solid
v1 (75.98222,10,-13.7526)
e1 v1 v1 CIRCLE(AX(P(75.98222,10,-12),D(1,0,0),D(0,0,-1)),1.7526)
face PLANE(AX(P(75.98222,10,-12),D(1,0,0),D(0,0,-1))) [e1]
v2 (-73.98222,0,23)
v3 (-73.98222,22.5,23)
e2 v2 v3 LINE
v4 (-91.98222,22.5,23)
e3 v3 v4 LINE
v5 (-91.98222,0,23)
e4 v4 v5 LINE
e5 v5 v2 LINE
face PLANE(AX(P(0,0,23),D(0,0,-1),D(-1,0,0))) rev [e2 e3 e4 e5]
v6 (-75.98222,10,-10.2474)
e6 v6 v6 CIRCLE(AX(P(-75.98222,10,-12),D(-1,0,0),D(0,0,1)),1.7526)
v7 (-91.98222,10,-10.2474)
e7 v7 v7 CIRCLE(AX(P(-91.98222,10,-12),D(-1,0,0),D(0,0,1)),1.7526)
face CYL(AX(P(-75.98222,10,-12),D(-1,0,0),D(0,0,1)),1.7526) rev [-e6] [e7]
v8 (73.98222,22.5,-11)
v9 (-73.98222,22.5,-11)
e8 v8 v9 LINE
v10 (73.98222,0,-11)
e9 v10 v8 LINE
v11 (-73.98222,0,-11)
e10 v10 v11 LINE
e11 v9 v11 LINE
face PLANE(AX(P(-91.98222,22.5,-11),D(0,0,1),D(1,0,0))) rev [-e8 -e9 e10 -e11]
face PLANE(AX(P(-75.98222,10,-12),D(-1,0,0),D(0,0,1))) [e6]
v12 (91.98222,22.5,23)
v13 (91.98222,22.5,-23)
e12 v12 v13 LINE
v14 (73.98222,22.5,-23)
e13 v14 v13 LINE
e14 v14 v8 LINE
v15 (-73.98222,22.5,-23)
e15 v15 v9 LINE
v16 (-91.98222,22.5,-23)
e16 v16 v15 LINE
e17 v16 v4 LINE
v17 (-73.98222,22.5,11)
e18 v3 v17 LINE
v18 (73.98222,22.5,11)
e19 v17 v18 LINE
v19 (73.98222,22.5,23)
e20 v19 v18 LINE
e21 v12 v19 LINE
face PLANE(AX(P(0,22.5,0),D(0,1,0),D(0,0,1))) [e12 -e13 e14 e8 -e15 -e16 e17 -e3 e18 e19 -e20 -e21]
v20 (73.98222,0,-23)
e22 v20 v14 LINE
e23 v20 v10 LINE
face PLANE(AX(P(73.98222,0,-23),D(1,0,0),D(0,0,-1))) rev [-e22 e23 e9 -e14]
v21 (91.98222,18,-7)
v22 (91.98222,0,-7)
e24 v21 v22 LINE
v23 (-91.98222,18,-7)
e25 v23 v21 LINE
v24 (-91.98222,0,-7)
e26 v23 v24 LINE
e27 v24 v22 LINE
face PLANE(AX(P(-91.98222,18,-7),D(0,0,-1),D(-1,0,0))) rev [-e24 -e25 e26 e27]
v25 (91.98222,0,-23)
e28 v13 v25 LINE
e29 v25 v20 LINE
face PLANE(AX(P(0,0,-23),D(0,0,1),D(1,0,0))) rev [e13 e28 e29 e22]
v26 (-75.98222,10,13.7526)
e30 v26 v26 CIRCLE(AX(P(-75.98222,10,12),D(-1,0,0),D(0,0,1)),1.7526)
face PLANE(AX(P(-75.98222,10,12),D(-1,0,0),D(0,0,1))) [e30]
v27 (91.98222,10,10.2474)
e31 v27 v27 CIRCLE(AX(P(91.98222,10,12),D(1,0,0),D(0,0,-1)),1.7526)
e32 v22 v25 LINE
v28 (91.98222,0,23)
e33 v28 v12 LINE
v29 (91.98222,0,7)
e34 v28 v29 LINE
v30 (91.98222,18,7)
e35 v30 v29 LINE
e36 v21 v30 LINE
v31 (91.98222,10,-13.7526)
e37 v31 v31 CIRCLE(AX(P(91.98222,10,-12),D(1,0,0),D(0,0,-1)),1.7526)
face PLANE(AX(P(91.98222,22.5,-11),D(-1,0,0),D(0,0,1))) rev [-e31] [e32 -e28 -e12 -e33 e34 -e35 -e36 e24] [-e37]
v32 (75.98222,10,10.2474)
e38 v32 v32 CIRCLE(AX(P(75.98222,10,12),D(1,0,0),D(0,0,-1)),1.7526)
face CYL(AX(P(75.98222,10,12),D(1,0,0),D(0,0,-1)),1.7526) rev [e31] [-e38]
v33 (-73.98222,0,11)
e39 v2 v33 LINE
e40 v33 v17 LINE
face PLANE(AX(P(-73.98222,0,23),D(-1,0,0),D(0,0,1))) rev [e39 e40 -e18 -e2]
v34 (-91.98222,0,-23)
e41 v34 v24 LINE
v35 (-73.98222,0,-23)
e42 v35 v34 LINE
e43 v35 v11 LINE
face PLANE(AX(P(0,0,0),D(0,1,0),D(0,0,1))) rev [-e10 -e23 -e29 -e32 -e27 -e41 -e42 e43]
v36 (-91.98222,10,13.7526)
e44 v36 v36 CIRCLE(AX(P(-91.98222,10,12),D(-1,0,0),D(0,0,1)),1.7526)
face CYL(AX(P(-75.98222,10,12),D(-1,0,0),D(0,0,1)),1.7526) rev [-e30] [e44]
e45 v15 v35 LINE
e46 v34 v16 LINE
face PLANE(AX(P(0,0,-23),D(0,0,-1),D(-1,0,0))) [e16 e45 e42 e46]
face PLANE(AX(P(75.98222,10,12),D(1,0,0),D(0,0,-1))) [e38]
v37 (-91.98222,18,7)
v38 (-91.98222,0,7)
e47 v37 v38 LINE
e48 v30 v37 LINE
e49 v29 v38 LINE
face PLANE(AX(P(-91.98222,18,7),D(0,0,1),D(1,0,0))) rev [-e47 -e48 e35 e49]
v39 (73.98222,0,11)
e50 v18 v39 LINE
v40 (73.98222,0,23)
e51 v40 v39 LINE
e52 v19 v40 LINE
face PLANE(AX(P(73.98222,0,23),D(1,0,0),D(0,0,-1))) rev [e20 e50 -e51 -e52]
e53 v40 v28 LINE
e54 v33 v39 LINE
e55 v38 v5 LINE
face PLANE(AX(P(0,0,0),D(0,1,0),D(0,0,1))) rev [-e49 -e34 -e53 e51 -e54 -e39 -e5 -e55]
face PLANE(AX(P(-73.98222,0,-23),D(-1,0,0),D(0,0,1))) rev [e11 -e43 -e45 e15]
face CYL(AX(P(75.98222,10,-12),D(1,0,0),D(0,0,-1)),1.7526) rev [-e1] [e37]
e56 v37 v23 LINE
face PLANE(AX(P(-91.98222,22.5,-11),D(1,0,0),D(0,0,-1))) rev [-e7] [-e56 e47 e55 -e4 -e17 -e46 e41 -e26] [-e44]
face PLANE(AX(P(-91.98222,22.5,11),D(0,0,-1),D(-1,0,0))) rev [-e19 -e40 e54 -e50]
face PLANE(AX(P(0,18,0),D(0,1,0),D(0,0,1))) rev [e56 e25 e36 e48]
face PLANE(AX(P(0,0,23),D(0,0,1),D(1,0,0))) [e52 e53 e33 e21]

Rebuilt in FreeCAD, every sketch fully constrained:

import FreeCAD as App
import Part
import Sketcher
from FreeCAD import Vector
Q = App.Units.Quantity

doc = App.newDocument("Part")
params = doc.addObject("Spreadsheet::Sheet", "Params")
for row, (alias, value) in enumerate([
    ("sketch1_height", "22 mm"),
    ("pad1_length", "22.5 mm"),
    ("sketch2_height", "14 mm"),
    ("pocket1_length", "18 mm"),
    ("sketch3_width", "18 mm"),
    ("sketch3_height", "22.5 mm"),
    ("pad2_length", "12 mm"),
    ("sketch4_width", "18 mm"),
    ("sketch4_height", "22.5 mm"),
    ("pad3_length", "12 mm"),
    ("pocket2_length", "16 mm"),
    ("pocket3_length", "16 mm"),
], start=1):
    params.set(f"A{row}", alias)
    params.set(f"B{row}", "=" + value)
    params.setAlias(f"B{row}", alias)

body = doc.addObject("PartDesign::Body", "Body")

# Sketch on XZ plane
sketch1 = body.newObject("Sketcher::SketchObject", "Sketch")
sketch1.AttachmentSupport = (doc.getObject("XZ_Plane"), [""])
sketch1.MapMode = "FlatFace"
sketch1.addGeometry([
    Part.LineSegment(Vector(-92, -11, 0), Vector(-92, 11, 0)),
    Part.LineSegment(Vector(-92, 11, 0), Vector(92, 11, 0)),
    Part.LineSegment(Vector(92, 11, 0), Vector(92, -11, 0)),
    Part.LineSegment(Vector(92, -11, 0), Vector(-92, -11, 0)),
], False)
sketch1.addConstraint([
    Sketcher.Constraint("Coincident", 0, 2, 1, 1),
    Sketcher.Constraint("Coincident", 1, 2, 2, 1),
    Sketcher.Constraint("Coincident", 2, 2, 3, 1),
    Sketcher.Constraint("Coincident", 3, 2, 0, 1),
    Sketcher.Constraint("Vertical", 0),
    Sketcher.Constraint("Horizontal", 1),
    Sketcher.Constraint("Vertical", 2),
    Sketcher.Constraint("Horizontal", 3),
    Sketcher.Constraint("Symmetric", 0, 2, 2, 2, -1, 1),
    Sketcher.Constraint("DistanceY", 0, 1, 0, 2, Q("22 mm")),
    Sketcher.Constraint("DistanceX", 1, 1, 1, 2, Q("183.96444 mm")),
])
sketch1.setExpression("Constraints[9]", "Params.sketch1_height")
pad1 = body.newObject("PartDesign::Pad", "Pad")
pad1.Profile = sketch1
pad1.setExpression("Length", "Params.pad1_length")
pad1.Reversed = True

# Sketch on XZ plane
sketch2 = body.newObject("Sketcher::SketchObject", "Sketch001")
sketch2.AttachmentSupport = (doc.getObject("XZ_Plane"), [""])
sketch2.MapMode = "FlatFace"
sketch2.addGeometry([
    Part.LineSegment(Vector(-92, 7, 0), Vector(-92, -7, 0)),
    Part.LineSegment(Vector(-92, -7, 0), Vector(92, -7, 0)),
    Part.LineSegment(Vector(92, -7, 0), Vector(92, 7, 0)),
    Part.LineSegment(Vector(92, 7, 0), Vector(-92, 7, 0)),
], False)
sketch2.addConstraint([
    Sketcher.Constraint("Coincident", 0, 2, 1, 1),
    Sketcher.Constraint("Coincident", 1, 2, 2, 1),
    Sketcher.Constraint("Coincident", 2, 2, 3, 1),
    Sketcher.Constraint("Coincident", 3, 2, 0, 1),
    Sketcher.Constraint("Vertical", 0),
    Sketcher.Constraint("Horizontal", 1),
    Sketcher.Constraint("Vertical", 2),
    Sketcher.Constraint("Horizontal", 3),
    Sketcher.Constraint("Symmetric", 0, 2, 2, 2, -1, 1),
    Sketcher.Constraint("DistanceY", 0, 2, 0, 1, Q("14 mm")),
    Sketcher.Constraint("DistanceX", 1, 1, 1, 2, Q("183.96444 mm")),
])
sketch2.setExpression("Constraints[9]", "Params.sketch2_height")
pocket1 = body.newObject("PartDesign::Pocket", "Pocket")
pocket1.Profile = sketch2
pocket1.setExpression("Length", "Params.pocket1_length")

# Sketch on XY plane
sketch3 = body.newObject("Sketcher::SketchObject", "Sketch002")
sketch3.AttachmentSupport = (doc.getObject("XY_Plane"), [""])
sketch3.MapMode = "FlatFace"
sketch3.AttachmentOffset = App.Placement(Vector(0, 0, 11), App.Rotation())
sketch3.addGeometry([
    Part.LineSegment(Vector(-92, 22, 0), Vector(-92, 0, 0)),  # 0
    Part.LineSegment(Vector(-92, 0, 0), Vector(-74, 0, 0)),  # 1
    Part.LineSegment(Vector(-74, 0, 0), Vector(-74, 22, 0)),  # 2
    Part.LineSegment(Vector(-74, 22, 0), Vector(-92, 22, 0)),  # 3
    Part.LineSegment(Vector(74, 22, 0), Vector(74, 0, 0)),  # 4
    Part.LineSegment(Vector(74, 0, 0), Vector(92, 0, 0)),  # 5
    Part.LineSegment(Vector(92, 0, 0), Vector(92, 22, 0)),  # 6
    Part.LineSegment(Vector(92, 22, 0), Vector(74, 22, 0)),  # 7
], False)
sketch3.addConstraint([
    Sketcher.Constraint("Coincident", 0, 2, 1, 1),
    Sketcher.Constraint("Coincident", 1, 2, 2, 1),
    Sketcher.Constraint("Coincident", 2, 2, 3, 1),
    Sketcher.Constraint("Coincident", 3, 2, 0, 1),
    Sketcher.Constraint("Coincident", 4, 2, 5, 1),
    Sketcher.Constraint("Coincident", 5, 2, 6, 1),
    Sketcher.Constraint("Coincident", 6, 2, 7, 1),
    Sketcher.Constraint("Coincident", 7, 2, 4, 1),
    Sketcher.Constraint("Vertical", 0),
    Sketcher.Constraint("Horizontal", 1),
    Sketcher.Constraint("Vertical", 2),
    Sketcher.Constraint("Horizontal", 3),
    Sketcher.Constraint("Vertical", 4),
    Sketcher.Constraint("Horizontal", 5),
    Sketcher.Constraint("Vertical", 6),
    Sketcher.Constraint("Horizontal", 7),
    Sketcher.Constraint("Symmetric", 1, 2, 4, 2, -1, 1),
    Sketcher.Constraint("Symmetric", 0, 2, 5, 2, -2),
    Sketcher.Constraint("Horizontal", 3, 2, 6, 2),
    Sketcher.Constraint("DistanceX", 1, 1, 1, 2, Q("18 mm")),
    Sketcher.Constraint("DistanceY", 0, 2, 0, 1, Q("22.5 mm")),
    Sketcher.Constraint("DistanceX", 0, 2, -1, 1, Q("91.98222 mm")),
])
sketch3.setExpression("Constraints[19]", "Params.sketch3_width")
sketch3.setExpression("Constraints[20]", "Params.sketch3_height")
pad2 = body.newObject("PartDesign::Pad", "Pad001")
pad2.Profile = sketch3
pad2.setExpression("Length", "Params.pad2_length")

# Sketch on XY plane
sketch4 = body.newObject("Sketcher::SketchObject", "Sketch003")
sketch4.AttachmentSupport = (doc.getObject("XY_Plane"), [""])
sketch4.MapMode = "FlatFace"
sketch4.AttachmentOffset = App.Placement(Vector(0, 0, -11), App.Rotation())
sketch4.addGeometry([
    Part.LineSegment(Vector(92, 22, 0), Vector(92, 0, 0)),  # 0
    Part.LineSegment(Vector(92, 0, 0), Vector(74, 0, 0)),  # 1
    Part.LineSegment(Vector(74, 0, 0), Vector(74, 22, 0)),  # 2
    Part.LineSegment(Vector(74, 22, 0), Vector(92, 22, 0)),  # 3
    Part.LineSegment(Vector(-74, 22, 0), Vector(-74, 0, 0)),  # 4
    Part.LineSegment(Vector(-74, 0, 0), Vector(-92, 0, 0)),  # 5
    Part.LineSegment(Vector(-92, 0, 0), Vector(-92, 22, 0)),  # 6
    Part.LineSegment(Vector(-92, 22, 0), Vector(-74, 22, 0)),  # 7
], False)
sketch4.addConstraint([
    Sketcher.Constraint("Coincident", 0, 2, 1, 1),
    Sketcher.Constraint("Coincident", 1, 2, 2, 1),
    Sketcher.Constraint("Coincident", 2, 2, 3, 1),
    Sketcher.Constraint("Coincident", 3, 2, 0, 1),
    Sketcher.Constraint("Coincident", 4, 2, 5, 1),
    Sketcher.Constraint("Coincident", 5, 2, 6, 1),
    Sketcher.Constraint("Coincident", 6, 2, 7, 1),
    Sketcher.Constraint("Coincident", 7, 2, 4, 1),
    Sketcher.Constraint("Vertical", 0),
    Sketcher.Constraint("Horizontal", 1),
    Sketcher.Constraint("Vertical", 2),
    Sketcher.Constraint("Horizontal", 3),
    Sketcher.Constraint("Vertical", 4),
    Sketcher.Constraint("Horizontal", 5),
    Sketcher.Constraint("Vertical", 6),
    Sketcher.Constraint("Horizontal", 7),
    Sketcher.Constraint("Symmetric", 1, 2, 4, 2, -1, 1),
    Sketcher.Constraint("Symmetric", 0, 2, 5, 2, -2),
    Sketcher.Constraint("Horizontal", 3, 2, 6, 2),
    Sketcher.Constraint("DistanceX", 1, 2, 1, 1, Q("18 mm")),
    Sketcher.Constraint("DistanceY", 0, 2, 0, 1, Q("22.5 mm")),
    Sketcher.Constraint("DistanceX", -1, 1, 0, 2, Q("91.98222 mm")),
])
sketch4.setExpression("Constraints[19]", "Params.sketch4_width")
sketch4.setExpression("Constraints[20]", "Params.sketch4_height")
pad3 = body.newObject("PartDesign::Pad", "Pad002")
pad3.Profile = sketch4
pad3.setExpression("Length", "Params.pad3_length")
pad3.Reversed = True

# Sketch on YZ plane
sketch5 = body.newObject("Sketcher::SketchObject", "Sketch004")
sketch5.AttachmentSupport = (doc.getObject("YZ_Plane"), [""])
sketch5.MapMode = "FlatFace"
sketch5.AttachmentOffset = App.Placement(Vector(0, 0, 91.98222), App.Rotation())
sketch5.addGeometry([
    Part.Circle(Vector(10, 12, 0), Vector(0, 0, 1), 1.8),
    Part.Circle(Vector(10, -12, 0), Vector(0, 0, 1), 1.8),
], False)
sketch5.addConstraint([
    Sketcher.Constraint("Equal", 0, 1),
    Sketcher.Constraint("Symmetric", 0, 3, 1, 3, -1),
    Sketcher.Constraint("DistanceX", -1, 1, 0, 3, Q("10 mm")),
    Sketcher.Constraint("DistanceY", -1, 1, 0, 3, Q("12 mm")),
    Sketcher.Constraint("Diameter", 0, Q("3.5052 mm")),
])
pocket2 = body.newObject("PartDesign::Pocket", "Pocket001")
pocket2.Profile = sketch5
pocket2.setExpression("Length", "Params.pocket2_length")

# Sketch on YZ plane
sketch6 = body.newObject("Sketcher::SketchObject", "Sketch005")
sketch6.AttachmentSupport = (doc.getObject("YZ_Plane"), [""])
sketch6.MapMode = "FlatFace"
sketch6.AttachmentOffset = App.Placement(Vector(0, 0, -75.98222), App.Rotation())
sketch6.addGeometry([
    Part.Circle(Vector(10, -12, 0), Vector(0, 0, 1), 1.8),
    Part.Circle(Vector(10, 12, 0), Vector(0, 0, 1), 1.8),
], False)
sketch6.addConstraint([
    Sketcher.Constraint("Equal", 0, 1),
    Sketcher.Constraint("Symmetric", 0, 3, 1, 3, -1),
    Sketcher.Constraint("DistanceX", -1, 1, 0, 3, Q("10 mm")),
    Sketcher.Constraint("DistanceY", 0, 3, -1, 1, Q("12 mm")),
    Sketcher.Constraint("Diameter", 0, Q("3.5052 mm")),
])
pocket3 = body.newObject("PartDesign::Pocket", "Pocket002")
pocket3.Profile = sketch6
pocket3.setExpression("Length", "Params.pocket3_length")

doc.recompute()
